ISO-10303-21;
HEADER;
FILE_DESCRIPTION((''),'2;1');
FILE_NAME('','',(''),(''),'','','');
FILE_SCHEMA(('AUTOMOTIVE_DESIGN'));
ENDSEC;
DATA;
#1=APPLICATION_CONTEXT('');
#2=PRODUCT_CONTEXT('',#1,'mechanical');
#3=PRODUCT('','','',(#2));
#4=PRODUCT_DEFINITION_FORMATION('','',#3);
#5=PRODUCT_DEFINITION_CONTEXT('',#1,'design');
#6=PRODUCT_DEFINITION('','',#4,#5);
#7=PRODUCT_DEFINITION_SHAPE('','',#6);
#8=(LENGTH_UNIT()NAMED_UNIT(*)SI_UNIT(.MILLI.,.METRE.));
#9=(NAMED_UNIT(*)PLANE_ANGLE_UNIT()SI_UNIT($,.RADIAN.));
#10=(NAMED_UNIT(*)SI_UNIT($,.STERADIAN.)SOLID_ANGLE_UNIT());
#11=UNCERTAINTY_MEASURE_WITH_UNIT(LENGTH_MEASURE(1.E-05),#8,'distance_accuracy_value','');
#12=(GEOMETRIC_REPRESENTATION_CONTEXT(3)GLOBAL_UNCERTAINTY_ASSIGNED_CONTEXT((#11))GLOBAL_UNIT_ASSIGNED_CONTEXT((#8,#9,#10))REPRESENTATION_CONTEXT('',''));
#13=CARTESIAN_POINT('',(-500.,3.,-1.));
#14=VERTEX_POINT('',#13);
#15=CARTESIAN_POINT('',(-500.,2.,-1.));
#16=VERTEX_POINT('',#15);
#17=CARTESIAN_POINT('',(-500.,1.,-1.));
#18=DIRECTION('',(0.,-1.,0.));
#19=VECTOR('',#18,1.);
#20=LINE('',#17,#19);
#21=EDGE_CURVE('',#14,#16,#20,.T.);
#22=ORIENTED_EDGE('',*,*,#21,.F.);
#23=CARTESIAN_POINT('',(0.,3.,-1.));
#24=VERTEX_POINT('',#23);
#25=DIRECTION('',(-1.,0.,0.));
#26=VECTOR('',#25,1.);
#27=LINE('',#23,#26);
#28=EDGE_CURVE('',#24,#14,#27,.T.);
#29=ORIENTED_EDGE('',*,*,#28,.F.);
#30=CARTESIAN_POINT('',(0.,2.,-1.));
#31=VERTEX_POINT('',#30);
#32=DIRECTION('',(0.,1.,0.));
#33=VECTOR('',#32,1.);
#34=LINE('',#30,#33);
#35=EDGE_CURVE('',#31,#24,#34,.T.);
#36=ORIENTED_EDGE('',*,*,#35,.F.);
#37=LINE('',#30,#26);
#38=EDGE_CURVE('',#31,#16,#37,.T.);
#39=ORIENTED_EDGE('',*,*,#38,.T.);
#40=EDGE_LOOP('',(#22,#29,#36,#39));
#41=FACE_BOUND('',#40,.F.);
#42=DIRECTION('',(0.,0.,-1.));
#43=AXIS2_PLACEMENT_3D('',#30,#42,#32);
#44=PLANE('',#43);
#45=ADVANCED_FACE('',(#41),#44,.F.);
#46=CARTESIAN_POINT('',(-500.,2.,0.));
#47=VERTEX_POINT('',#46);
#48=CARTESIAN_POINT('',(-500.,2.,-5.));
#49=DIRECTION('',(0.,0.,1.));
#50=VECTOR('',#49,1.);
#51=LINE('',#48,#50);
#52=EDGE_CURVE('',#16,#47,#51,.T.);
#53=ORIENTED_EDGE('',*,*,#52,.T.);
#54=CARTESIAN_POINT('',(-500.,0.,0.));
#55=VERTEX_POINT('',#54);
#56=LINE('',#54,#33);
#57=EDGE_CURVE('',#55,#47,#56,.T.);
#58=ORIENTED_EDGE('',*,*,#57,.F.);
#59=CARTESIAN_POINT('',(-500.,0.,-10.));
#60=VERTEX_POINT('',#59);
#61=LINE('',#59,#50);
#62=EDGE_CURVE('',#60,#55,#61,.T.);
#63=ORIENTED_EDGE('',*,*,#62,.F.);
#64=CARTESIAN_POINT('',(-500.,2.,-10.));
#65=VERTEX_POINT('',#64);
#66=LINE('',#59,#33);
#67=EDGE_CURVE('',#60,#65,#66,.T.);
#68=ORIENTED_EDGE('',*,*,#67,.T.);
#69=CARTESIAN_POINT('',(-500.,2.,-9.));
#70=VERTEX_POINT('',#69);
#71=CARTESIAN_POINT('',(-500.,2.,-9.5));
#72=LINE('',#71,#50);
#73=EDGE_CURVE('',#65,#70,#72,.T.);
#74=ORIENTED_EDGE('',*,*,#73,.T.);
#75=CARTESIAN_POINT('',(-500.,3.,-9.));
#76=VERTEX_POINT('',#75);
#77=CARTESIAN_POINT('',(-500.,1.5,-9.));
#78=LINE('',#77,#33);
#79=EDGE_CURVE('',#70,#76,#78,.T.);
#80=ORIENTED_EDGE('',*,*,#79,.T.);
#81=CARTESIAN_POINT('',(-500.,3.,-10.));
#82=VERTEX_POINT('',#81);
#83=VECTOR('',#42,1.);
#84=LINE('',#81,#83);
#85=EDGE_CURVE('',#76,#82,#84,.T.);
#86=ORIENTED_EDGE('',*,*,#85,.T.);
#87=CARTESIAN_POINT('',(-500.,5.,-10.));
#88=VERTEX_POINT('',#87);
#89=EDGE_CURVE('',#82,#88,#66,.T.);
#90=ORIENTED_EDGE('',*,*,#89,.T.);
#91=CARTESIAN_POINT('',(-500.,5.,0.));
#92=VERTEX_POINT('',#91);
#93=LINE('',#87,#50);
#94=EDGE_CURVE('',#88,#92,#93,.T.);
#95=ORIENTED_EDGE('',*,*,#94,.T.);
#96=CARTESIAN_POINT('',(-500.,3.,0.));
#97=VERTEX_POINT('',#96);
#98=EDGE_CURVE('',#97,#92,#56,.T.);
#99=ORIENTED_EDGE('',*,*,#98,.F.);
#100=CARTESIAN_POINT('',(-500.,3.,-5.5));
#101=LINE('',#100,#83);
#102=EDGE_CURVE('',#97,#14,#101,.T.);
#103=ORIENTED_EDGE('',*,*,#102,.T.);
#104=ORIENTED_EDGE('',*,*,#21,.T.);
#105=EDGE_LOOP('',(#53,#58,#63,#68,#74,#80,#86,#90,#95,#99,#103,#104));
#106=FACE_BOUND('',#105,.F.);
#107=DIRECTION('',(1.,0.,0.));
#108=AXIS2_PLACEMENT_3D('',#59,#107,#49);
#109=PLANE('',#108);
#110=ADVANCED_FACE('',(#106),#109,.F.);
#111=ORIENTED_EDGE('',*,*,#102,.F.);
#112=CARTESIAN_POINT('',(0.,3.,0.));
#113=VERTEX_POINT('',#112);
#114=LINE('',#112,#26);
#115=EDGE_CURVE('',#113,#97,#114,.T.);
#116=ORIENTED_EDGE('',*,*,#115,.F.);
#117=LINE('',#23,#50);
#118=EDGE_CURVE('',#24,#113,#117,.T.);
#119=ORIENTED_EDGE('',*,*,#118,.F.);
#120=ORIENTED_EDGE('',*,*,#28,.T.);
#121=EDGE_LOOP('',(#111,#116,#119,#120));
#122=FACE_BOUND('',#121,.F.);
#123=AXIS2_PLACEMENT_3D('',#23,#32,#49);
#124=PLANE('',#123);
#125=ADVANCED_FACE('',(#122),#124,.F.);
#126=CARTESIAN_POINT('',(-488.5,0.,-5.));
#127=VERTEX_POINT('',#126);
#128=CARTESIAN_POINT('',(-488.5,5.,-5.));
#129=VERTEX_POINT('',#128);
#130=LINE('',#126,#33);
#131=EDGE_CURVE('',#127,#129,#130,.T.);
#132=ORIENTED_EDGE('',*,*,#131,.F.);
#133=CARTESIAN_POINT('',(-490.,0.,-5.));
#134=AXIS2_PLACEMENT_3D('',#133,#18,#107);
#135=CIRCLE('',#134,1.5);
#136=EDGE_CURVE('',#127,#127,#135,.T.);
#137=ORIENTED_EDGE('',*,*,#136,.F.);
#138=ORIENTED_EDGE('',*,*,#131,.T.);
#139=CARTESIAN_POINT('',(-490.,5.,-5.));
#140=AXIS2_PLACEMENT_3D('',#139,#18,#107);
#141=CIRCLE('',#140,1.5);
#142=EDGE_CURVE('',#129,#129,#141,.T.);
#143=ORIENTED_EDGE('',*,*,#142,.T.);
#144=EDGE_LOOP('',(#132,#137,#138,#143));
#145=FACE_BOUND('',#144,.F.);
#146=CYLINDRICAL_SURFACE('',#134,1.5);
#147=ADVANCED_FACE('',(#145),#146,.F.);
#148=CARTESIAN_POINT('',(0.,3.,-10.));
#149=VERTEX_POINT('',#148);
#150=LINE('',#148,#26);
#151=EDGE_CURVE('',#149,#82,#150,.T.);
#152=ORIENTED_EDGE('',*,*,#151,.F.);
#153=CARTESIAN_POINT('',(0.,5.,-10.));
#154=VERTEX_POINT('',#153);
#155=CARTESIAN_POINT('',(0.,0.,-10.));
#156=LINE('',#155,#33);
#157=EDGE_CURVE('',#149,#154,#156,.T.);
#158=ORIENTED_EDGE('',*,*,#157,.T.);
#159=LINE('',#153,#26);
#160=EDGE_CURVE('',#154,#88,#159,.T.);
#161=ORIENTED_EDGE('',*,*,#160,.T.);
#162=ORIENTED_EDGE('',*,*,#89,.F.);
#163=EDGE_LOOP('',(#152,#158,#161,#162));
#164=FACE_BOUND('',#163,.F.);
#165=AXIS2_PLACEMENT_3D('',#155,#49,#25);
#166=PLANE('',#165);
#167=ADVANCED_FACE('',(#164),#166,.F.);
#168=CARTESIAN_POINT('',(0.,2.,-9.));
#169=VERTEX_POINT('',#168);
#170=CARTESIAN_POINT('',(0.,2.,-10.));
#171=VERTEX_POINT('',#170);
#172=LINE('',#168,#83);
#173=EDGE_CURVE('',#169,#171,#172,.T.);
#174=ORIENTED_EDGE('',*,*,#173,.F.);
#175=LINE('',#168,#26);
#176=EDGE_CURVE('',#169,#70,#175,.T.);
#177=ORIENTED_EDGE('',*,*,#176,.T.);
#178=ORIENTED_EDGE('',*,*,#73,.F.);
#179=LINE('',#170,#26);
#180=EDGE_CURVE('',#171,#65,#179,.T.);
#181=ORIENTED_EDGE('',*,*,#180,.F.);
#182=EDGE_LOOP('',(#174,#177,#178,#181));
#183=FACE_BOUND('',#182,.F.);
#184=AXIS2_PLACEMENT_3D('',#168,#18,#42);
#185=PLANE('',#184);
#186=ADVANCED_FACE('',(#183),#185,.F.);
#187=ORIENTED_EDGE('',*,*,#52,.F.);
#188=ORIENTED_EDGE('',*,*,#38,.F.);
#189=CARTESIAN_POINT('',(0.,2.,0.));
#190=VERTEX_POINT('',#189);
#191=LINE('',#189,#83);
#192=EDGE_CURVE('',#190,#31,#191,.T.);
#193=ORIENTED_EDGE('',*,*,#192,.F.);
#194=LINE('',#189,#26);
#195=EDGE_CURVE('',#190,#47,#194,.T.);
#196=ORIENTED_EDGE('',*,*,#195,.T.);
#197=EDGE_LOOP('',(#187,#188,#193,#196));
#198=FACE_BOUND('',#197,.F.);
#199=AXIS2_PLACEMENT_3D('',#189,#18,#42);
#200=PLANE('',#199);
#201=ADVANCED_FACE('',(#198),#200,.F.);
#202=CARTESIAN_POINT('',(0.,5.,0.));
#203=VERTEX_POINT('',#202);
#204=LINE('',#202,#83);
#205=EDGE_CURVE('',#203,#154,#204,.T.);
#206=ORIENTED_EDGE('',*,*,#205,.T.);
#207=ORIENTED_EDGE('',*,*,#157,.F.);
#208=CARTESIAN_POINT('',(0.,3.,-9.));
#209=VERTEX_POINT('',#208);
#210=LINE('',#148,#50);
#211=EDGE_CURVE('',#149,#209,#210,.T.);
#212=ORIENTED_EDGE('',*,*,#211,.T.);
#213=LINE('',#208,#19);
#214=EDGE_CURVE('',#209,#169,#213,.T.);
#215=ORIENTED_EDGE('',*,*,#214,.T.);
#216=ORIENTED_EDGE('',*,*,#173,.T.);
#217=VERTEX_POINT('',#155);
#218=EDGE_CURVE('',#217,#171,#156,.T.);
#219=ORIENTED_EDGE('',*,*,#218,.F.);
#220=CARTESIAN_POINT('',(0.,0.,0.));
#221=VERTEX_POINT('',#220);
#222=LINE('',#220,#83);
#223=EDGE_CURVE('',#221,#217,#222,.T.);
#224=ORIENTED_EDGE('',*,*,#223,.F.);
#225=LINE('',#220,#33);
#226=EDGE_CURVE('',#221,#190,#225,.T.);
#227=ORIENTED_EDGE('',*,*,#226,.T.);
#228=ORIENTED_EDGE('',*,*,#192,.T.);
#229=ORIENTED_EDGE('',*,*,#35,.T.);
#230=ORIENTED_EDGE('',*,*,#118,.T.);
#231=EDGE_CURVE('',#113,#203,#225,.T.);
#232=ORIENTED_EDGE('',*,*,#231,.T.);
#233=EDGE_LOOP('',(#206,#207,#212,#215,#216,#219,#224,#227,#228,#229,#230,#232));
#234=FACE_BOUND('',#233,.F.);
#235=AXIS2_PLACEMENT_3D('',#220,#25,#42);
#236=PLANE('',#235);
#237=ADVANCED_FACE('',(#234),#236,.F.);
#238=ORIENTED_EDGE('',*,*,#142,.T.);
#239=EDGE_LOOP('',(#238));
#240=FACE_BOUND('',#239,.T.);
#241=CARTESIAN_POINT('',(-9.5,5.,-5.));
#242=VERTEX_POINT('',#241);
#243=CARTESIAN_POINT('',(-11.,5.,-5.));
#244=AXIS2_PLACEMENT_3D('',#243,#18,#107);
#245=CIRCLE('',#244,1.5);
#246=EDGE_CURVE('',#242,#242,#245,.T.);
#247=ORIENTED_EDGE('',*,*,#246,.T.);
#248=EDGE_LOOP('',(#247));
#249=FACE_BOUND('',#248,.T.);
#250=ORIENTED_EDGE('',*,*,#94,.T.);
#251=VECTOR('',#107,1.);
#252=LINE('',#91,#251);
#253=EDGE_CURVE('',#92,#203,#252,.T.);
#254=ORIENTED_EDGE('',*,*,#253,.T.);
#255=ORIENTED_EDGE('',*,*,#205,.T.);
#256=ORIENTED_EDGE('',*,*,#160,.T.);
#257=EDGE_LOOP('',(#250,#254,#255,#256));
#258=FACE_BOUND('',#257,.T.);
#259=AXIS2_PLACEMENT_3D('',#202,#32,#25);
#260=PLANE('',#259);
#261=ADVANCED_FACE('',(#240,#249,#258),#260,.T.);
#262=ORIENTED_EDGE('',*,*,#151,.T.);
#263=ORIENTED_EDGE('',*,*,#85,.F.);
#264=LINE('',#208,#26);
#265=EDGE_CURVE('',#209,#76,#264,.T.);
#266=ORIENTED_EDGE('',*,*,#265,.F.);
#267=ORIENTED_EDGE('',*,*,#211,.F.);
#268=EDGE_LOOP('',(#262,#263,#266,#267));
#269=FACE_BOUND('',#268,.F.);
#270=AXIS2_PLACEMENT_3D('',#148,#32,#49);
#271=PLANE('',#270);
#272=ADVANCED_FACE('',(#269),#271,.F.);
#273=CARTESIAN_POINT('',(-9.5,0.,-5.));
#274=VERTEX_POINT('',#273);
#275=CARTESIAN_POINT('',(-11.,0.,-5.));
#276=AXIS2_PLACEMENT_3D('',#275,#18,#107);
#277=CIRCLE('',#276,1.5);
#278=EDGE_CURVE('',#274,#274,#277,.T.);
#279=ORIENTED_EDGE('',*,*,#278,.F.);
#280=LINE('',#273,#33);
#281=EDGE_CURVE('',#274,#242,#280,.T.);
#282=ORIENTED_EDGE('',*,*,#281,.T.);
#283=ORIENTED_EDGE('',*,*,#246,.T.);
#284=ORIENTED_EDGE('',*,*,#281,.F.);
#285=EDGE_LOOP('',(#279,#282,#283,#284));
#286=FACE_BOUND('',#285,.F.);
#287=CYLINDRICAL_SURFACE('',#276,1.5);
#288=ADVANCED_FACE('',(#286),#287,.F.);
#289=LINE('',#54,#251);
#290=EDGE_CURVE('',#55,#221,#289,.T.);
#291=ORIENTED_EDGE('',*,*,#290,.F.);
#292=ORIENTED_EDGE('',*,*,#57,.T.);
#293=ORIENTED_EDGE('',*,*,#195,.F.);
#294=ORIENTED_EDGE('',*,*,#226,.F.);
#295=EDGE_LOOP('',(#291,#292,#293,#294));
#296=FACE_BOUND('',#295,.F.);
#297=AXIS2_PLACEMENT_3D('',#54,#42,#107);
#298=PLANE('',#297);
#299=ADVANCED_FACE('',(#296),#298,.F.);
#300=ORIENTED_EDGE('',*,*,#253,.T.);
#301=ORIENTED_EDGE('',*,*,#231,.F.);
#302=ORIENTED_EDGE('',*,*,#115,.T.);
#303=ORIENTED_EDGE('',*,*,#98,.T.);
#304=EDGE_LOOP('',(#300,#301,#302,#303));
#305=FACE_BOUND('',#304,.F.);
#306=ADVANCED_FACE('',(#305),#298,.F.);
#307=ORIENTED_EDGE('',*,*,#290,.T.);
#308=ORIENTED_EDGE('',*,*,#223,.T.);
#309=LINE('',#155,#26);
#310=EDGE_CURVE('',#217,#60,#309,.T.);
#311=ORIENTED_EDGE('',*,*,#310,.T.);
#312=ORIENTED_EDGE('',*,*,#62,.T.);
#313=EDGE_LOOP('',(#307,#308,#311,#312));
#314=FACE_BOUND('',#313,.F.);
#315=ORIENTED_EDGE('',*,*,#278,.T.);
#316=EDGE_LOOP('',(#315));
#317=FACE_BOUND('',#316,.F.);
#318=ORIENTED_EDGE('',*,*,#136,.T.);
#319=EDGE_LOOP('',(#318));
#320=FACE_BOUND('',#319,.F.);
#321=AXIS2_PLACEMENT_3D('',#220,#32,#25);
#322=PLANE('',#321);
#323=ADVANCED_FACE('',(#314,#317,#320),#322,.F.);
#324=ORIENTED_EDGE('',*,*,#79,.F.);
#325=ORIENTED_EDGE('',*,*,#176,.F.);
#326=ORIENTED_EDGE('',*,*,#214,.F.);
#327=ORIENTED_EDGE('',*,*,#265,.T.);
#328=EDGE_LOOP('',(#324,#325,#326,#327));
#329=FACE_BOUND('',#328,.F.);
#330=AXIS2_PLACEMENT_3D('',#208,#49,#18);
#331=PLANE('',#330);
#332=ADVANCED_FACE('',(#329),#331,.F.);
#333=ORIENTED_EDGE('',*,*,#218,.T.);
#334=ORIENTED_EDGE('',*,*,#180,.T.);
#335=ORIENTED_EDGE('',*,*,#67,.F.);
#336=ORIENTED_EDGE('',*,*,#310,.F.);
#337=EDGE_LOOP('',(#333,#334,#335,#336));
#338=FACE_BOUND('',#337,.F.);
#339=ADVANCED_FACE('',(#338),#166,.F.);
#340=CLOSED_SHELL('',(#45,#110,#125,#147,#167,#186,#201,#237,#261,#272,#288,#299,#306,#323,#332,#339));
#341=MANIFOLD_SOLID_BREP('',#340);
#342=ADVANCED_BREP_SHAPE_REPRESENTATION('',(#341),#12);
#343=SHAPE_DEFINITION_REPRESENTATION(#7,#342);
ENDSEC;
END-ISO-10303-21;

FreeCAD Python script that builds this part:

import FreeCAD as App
import Part
import Sketcher

V = App.Vector

doc = App.newDocument("Part")
body = doc.addObject("PartDesign::Body", "Body")

# Sketch on XZ plane
sketch1 = body.newObject("Sketcher::SketchObject", "Sketch")
sketch1.AttachmentSupport = (doc.getObject("XZ_Plane"), [""])
sketch1.MapMode = "FlatFace"
sketch1.addGeometry([
    Part.LineSegment(V(-500, 0, 0), V(0, 0, 0)),
    Part.LineSegment(V(0, 0, 0), V(0, -10, 0)),
    Part.LineSegment(V(0, -10, 0), V(-500, -10, 0)),
    Part.LineSegment(V(-500, -10, 0), V(-500, 0, 0)),
], False)
sketch1.addConstraint([
    Sketcher.Constraint("Coincident", 0, 2, 1, 1),
    Sketcher.Constraint("Coincident", 1, 2, 2, 1),
    Sketcher.Constraint("Coincident", 2, 2, 3, 1),
    Sketcher.Constraint("Coincident", 3, 2, 0, 1),
    Sketcher.Constraint("Horizontal", 0),
    Sketcher.Constraint("Vertical", 1),
    Sketcher.Constraint("Horizontal", 2),
    Sketcher.Constraint("Vertical", 3),
    Sketcher.Constraint("Coincident", 0, 2, -1, 1),
    Sketcher.Constraint("DistanceX", 0, 1, 0, 2, 500.0),
    Sketcher.Constraint("DistanceY", 1, 2, 1, 1, 10.0),
])
pad1 = body.newObject("PartDesign::Pad", "Pad")
pad1.Profile = sketch1
pad1.Length = 5
pad1.Reversed = True

# Sketch on YZ plane
sketch2 = body.newObject("Sketcher::SketchObject", "Sketch001")
sketch2.AttachmentSupport = (doc.getObject("YZ_Plane"), [""])
sketch2.MapMode = "FlatFace"
sketch2.addGeometry([
    Part.LineSegment(V(2, -1, 0), V(3, -1, 0)),  # 0
    Part.LineSegment(V(3, -1, 0), V(3, 0, 0)),  # 1
    Part.LineSegment(V(3, 0, 0), V(2, 0, 0)),  # 2
    Part.LineSegment(V(2, 0, 0), V(2, -1, 0)),  # 3
    Part.LineSegment(V(2, -10, 0), V(3, -10, 0)),  # 4
    Part.LineSegment(V(3, -10, 0), V(3, -9, 0)),  # 5
    Part.LineSegment(V(3, -9, 0), V(2, -9, 0)),  # 6
    Part.LineSegment(V(2, -9, 0), V(2, -10, 0)),  # 7
], False)
sketch2.addConstraint([
    Sketcher.Constraint("Coincident", 0, 2, 1, 1),
    Sketcher.Constraint("Coincident", 1, 2, 2, 1),
    Sketcher.Constraint("Coincident", 2, 2, 3, 1),
    Sketcher.Constraint("Coincident", 3, 2, 0, 1),
    Sketcher.Constraint("Coincident", 4, 2, 5, 1),
    Sketcher.Constraint("Coincident", 5, 2, 6, 1),
    Sketcher.Constraint("Coincident", 6, 2, 7, 1),
    Sketcher.Constraint("Coincident", 7, 2, 4, 1),
    Sketcher.Constraint("Horizontal", 0),
    Sketcher.Constraint("Vertical", 1),
    Sketcher.Constraint("Horizontal", 2),
    Sketcher.Constraint("Vertical", 3),
    Sketcher.Constraint("Horizontal", 4),
    Sketcher.Constraint("Vertical", 5),
    Sketcher.Constraint("Horizontal", 6),
    Sketcher.Constraint("Vertical", 7),
    Sketcher.Constraint("PointOnObject", 1, 2, -1),
    Sketcher.Constraint("Vertical", 1, 2, 4, 2),
    Sketcher.Constraint("Vertical", 3, 2, 6, 2),
    Sketcher.Constraint("Equal", 6, 1),
    Sketcher.Constraint("Equal", 3, 5),
    Sketcher.Constraint("DistanceX", 0, 1, 0, 2, 1.0),
    Sketcher.Constraint("DistanceX", -1, 1, 0, 2, 3.0),
    Sketcher.Constraint("DistanceY", 4, 2, -1, 1, 10.0),
])
pocket1 = body.newObject("PartDesign::Pocket", "Pocket")
pocket1.Profile = sketch2
pocket1.Type = "UpToFirst"

# Sketch on XZ plane
sketch3 = body.newObject("Sketcher::SketchObject", "Sketch002")
sketch3.AttachmentSupport = (doc.getObject("XZ_Plane"), [""])
sketch3.MapMode = "FlatFace"
sketch3.addGeometry([
    Part.Circle(V(-11, -5, 0), V(0, 0, 1), 1.5),
    Part.Circle(V(-490, -5, 0), V(0, 0, 1), 1.5),
], False)
sketch3.addConstraint([
    Sketcher.Constraint("Equal", 0, 1),
    Sketcher.Constraint("Horizontal", 0, 3, 1, 3),
    Sketcher.Constraint("Diameter", 0, 3.0),
    Sketcher.Constraint("DistanceX", 1, 3, 0, 3, 479.0),
    Sketcher.Constraint("DistanceX", 0, 3, -1, 1, 11.0),
    Sketcher.Constraint("DistanceY", 0, 3, -1, 1, 5.0),
])
pocket2 = body.newObject("PartDesign::Pocket", "Pocket001")
pocket2.Profile = sketch3
pocket2.Length = 5

doc.recompute()
